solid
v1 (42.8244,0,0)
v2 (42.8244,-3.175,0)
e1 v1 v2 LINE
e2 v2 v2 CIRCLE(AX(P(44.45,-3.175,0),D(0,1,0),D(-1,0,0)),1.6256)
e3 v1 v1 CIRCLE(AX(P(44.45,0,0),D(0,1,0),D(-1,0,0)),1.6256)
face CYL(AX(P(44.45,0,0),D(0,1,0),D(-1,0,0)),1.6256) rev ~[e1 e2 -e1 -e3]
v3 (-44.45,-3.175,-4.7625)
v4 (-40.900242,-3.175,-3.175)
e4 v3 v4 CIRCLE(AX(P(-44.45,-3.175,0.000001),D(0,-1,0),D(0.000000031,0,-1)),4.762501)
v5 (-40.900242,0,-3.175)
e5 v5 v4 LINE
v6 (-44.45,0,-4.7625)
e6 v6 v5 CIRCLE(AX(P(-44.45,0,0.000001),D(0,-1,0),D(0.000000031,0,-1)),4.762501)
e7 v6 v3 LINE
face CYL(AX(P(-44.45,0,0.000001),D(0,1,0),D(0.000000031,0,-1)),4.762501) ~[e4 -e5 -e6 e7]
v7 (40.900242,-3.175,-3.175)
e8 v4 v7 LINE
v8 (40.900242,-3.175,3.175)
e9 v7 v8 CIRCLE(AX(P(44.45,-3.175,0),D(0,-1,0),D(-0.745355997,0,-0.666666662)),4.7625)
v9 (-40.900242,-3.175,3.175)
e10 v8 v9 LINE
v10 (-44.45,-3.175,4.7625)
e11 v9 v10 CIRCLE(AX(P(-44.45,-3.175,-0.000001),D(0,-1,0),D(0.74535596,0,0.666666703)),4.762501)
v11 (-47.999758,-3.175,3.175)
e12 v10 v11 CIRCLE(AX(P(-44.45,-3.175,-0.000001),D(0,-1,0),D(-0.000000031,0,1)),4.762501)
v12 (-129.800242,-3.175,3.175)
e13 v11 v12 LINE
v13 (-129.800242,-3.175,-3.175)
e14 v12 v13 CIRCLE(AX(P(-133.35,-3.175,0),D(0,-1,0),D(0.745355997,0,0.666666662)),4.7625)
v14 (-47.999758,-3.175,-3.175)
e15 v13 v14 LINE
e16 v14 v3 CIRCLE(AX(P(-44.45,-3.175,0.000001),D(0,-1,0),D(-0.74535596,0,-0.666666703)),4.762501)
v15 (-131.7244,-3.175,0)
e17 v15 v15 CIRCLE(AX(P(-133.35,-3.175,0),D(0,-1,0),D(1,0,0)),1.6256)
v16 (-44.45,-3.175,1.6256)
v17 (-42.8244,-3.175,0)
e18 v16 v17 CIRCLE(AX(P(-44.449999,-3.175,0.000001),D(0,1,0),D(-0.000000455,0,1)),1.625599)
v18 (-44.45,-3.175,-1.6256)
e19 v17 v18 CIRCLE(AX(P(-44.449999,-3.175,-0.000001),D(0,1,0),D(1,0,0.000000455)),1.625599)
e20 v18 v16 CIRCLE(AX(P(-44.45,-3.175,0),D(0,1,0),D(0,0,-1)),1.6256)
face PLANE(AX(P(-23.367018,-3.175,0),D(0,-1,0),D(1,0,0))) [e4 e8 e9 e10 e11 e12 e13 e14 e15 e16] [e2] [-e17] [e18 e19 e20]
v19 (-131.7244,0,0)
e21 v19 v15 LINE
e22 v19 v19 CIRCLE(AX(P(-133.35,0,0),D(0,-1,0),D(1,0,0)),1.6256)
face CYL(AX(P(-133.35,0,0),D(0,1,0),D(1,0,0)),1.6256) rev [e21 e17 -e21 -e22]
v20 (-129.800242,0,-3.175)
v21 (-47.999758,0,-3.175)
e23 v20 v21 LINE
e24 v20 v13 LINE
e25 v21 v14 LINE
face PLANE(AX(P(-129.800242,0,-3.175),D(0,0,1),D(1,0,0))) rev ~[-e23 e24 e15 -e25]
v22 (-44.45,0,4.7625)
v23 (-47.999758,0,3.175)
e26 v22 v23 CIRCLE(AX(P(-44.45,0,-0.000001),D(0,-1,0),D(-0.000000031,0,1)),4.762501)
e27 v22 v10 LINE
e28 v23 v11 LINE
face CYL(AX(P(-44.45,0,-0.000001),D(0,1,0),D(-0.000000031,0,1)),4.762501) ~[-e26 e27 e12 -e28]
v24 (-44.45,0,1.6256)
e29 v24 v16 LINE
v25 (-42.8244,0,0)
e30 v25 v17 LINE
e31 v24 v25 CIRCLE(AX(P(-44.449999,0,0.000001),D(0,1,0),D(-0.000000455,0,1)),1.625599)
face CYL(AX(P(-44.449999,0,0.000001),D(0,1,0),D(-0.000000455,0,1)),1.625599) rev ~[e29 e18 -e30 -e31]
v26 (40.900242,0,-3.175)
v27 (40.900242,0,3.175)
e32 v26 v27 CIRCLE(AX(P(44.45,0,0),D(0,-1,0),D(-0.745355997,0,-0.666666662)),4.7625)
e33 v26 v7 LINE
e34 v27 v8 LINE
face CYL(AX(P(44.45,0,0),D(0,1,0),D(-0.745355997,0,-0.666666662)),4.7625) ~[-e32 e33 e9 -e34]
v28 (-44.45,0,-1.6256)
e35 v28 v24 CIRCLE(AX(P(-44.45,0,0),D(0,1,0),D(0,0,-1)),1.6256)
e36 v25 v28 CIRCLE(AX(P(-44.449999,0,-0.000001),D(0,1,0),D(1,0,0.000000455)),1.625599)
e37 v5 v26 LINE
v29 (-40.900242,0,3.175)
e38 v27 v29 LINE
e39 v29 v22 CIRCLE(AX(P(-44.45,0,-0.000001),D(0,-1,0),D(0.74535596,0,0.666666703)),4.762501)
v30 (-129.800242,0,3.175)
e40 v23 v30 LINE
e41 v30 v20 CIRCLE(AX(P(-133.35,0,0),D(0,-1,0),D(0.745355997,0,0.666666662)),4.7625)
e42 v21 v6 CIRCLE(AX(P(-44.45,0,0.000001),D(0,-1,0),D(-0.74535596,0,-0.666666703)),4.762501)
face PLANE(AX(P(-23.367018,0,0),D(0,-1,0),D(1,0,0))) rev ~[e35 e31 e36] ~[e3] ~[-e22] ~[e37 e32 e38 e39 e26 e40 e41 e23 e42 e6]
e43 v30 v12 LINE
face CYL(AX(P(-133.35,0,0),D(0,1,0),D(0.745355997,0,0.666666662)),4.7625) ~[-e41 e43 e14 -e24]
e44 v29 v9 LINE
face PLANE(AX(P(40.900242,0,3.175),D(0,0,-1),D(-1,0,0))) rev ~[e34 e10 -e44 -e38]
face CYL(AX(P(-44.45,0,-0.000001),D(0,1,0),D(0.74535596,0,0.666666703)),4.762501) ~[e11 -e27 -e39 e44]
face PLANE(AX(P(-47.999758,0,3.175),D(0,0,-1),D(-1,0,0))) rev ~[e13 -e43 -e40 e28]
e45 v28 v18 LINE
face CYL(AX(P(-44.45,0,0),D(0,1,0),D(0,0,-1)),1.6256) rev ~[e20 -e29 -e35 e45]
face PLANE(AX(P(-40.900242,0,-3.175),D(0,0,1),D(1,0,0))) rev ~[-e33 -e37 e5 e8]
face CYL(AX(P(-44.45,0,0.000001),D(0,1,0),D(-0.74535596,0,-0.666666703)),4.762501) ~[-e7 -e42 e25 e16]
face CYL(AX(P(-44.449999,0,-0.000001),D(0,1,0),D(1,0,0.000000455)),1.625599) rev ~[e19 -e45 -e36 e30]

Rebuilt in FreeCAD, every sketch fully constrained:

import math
import FreeCAD as App
import Part
import Sketcher

V = App.Vector
Q = App.Units.Quantity

doc = App.newDocument("Part")
body = doc.addObject("PartDesign::Body", "Body")

# Sketch on XZ plane
sketch1 = body.newObject("Sketcher::SketchObject", "Sketch")
sketch1.AttachmentSupport = (doc.getObject("XZ_Plane"), [""])
sketch1.MapMode = "FlatFace"
sketch1.addGeometry([
    Part.ArcOfCircle(Part.Circle(V(-44.45, -0.000001, 0), V(0, 0, 1), 4.762501), math.radians(41.810318), math.radians(89.999998)),  # 0
    Part.ArcOfCircle(Part.Circle(V(-44.45, -0.000001, 0), V(0, 0, 1), 4.762501), math.radians(90.000002), math.radians(138.189682)),  # 1
    Part.LineSegment(V(-47.999758, 3.175, 0), V(-129.800242, 3.175, 0)),  # 2
    Part.ArcOfCircle(Part.Circle(V(-133.35, 0, 0), V(0, 0, 1), 4.7625), math.radians(41.810315), math.radians(318.189685)),  # 3
    Part.LineSegment(V(-129.800242, -3.175, 0), V(-47.999758, -3.175, 0)),  # 4
    Part.ArcOfCircle(Part.Circle(V(-44.45, 0.000001, 0), V(0, 0, 1), 4.762501), math.radians(-138.189682), math.radians(-90.000002)),  # 5
    Part.ArcOfCircle(Part.Circle(V(-44.45, 0.000001, 0), V(0, 0, 1), 4.762501), math.radians(-89.999998), math.radians(-41.810318)),  # 6
    Part.LineSegment(V(-40.900242, -3.175, 0), V(40.900242, -3.175, 0)),  # 7
    Part.ArcOfCircle(Part.Circle(V(44.45, 0, 0), V(0, 0, 1), 4.7625), math.radians(-138.189685), math.radians(138.189685)),  # 8
    Part.LineSegment(V(40.900242, 3.175, 0), V(-40.900242, 3.175, 0)),  # 9
    Part.ArcOfCircle(Part.Circle(V(-44.449999, 0.000001, 0), V(0, 0, 1), 1.625599), math.radians(-0.000026), math.radians(90.000026)),  # 10
    Part.ArcOfCircle(Part.Circle(V(-44.449999, -0.000001, 0), V(0, 0, 1), 1.625599), math.radians(-90.000026), math.radians(0.000026)),  # 11
    Part.ArcOfCircle(Part.Circle(V(-44.45, 0, 0), V(0, 0, 1), 1.6256), math.radians(90), math.radians(270)),  # 12
    Part.Circle(V(44.45, 0, 0), V(0, 0, 1), 1.6256),  # 13
    Part.Circle(V(-133.35, 0, 0), V(0, 0, 1), 1.6256),  # 14
], False)
sketch1.addConstraint([
    Sketcher.Constraint("Tangent", 0, 2, 1, 1),
    Sketcher.Constraint("Coincident", 1, 2, 2, 1),
    Sketcher.Constraint("Coincident", 2, 2, 3, 1),
    Sketcher.Constraint("Coincident", 3, 2, 4, 1),
    Sketcher.Constraint("Coincident", 4, 2, 5, 1),
    Sketcher.Constraint("Tangent", 5, 2, 6, 1),
    Sketcher.Constraint("Coincident", 6, 2, 7, 1),
    Sketcher.Constraint("Coincident", 7, 2, 8, 1),
    Sketcher.Constraint("Coincident", 8, 2, 9, 1),
    Sketcher.Constraint("Coincident", 9, 2, 0, 1),
    Sketcher.Constraint("Tangent", 10, 1, 11, 2),
    Sketcher.Constraint("Tangent", 11, 1, 12, 2),
    Sketcher.Constraint("Tangent", 12, 1, 10, 2),
    Sketcher.Constraint("Horizontal", 2),
    Sketcher.Constraint("Horizontal", 4),
    Sketcher.Constraint("Horizontal", 7),
    Sketcher.Constraint("Horizontal", 9),
    Sketcher.Constraint("Coincident", 5, 3, 0, 3),
    Sketcher.Constraint("Coincident", 10, 3, 0, 3),
    Sketcher.Constraint("Coincident", 13, 3, 8, 3),
    Sketcher.Constraint("Coincident", 14, 3, 3, 3),
    Sketcher.Constraint("Equal", 0, 1),
    Sketcher.Constraint("Equal", 1, 3),
    Sketcher.Constraint("Equal", 3, 5),
    Sketcher.Constraint("Equal", 5, 6),
    Sketcher.Constraint("Equal", 6, 8),
    Sketcher.Constraint("Equal", 12, 13),
    Sketcher.Constraint("Equal", 13, 14),
    Sketcher.Constraint("Symmetric", 0, 3, 8, 3, -1, 1),
    Sketcher.Constraint("Symmetric", 2, 2, 3, 2, -1),
    Sketcher.Constraint("Symmetric", 0, 2, 5, 2, -1),
    Sketcher.Constraint("PointOnObject", 10, 1, -1),
    Sketcher.Constraint("Horizontal", 4, 2, 6, 2),
    Sketcher.Constraint("Horizontal", 2, 2, 8, 2),
    Sketcher.Constraint("Vertical", 12, 3, 0, 2),
    Sketcher.Constraint("Vertical", 5, 2, 11, 1),
    Sketcher.Constraint("Vertical", 11, 1, 12, 1),
    Sketcher.Constraint("Equal", 4, 7),
    Sketcher.Constraint("Diameter", 13, Q("0.128 in")),
    Sketcher.Constraint("Radius", 0, Q("0.1875 in")),
    Sketcher.Constraint("DistanceX", 3, 3, 8, 3, Q("7 in")),
    Sketcher.Constraint("DistanceY", 3, 2, 2, 2, Q("0.25 in")),
])
pad1 = body.newObject("PartDesign::Pad", "Pad")
pad1.Profile = sketch1
pad1.Length = Q("0.125 in")

doc.recompute()
